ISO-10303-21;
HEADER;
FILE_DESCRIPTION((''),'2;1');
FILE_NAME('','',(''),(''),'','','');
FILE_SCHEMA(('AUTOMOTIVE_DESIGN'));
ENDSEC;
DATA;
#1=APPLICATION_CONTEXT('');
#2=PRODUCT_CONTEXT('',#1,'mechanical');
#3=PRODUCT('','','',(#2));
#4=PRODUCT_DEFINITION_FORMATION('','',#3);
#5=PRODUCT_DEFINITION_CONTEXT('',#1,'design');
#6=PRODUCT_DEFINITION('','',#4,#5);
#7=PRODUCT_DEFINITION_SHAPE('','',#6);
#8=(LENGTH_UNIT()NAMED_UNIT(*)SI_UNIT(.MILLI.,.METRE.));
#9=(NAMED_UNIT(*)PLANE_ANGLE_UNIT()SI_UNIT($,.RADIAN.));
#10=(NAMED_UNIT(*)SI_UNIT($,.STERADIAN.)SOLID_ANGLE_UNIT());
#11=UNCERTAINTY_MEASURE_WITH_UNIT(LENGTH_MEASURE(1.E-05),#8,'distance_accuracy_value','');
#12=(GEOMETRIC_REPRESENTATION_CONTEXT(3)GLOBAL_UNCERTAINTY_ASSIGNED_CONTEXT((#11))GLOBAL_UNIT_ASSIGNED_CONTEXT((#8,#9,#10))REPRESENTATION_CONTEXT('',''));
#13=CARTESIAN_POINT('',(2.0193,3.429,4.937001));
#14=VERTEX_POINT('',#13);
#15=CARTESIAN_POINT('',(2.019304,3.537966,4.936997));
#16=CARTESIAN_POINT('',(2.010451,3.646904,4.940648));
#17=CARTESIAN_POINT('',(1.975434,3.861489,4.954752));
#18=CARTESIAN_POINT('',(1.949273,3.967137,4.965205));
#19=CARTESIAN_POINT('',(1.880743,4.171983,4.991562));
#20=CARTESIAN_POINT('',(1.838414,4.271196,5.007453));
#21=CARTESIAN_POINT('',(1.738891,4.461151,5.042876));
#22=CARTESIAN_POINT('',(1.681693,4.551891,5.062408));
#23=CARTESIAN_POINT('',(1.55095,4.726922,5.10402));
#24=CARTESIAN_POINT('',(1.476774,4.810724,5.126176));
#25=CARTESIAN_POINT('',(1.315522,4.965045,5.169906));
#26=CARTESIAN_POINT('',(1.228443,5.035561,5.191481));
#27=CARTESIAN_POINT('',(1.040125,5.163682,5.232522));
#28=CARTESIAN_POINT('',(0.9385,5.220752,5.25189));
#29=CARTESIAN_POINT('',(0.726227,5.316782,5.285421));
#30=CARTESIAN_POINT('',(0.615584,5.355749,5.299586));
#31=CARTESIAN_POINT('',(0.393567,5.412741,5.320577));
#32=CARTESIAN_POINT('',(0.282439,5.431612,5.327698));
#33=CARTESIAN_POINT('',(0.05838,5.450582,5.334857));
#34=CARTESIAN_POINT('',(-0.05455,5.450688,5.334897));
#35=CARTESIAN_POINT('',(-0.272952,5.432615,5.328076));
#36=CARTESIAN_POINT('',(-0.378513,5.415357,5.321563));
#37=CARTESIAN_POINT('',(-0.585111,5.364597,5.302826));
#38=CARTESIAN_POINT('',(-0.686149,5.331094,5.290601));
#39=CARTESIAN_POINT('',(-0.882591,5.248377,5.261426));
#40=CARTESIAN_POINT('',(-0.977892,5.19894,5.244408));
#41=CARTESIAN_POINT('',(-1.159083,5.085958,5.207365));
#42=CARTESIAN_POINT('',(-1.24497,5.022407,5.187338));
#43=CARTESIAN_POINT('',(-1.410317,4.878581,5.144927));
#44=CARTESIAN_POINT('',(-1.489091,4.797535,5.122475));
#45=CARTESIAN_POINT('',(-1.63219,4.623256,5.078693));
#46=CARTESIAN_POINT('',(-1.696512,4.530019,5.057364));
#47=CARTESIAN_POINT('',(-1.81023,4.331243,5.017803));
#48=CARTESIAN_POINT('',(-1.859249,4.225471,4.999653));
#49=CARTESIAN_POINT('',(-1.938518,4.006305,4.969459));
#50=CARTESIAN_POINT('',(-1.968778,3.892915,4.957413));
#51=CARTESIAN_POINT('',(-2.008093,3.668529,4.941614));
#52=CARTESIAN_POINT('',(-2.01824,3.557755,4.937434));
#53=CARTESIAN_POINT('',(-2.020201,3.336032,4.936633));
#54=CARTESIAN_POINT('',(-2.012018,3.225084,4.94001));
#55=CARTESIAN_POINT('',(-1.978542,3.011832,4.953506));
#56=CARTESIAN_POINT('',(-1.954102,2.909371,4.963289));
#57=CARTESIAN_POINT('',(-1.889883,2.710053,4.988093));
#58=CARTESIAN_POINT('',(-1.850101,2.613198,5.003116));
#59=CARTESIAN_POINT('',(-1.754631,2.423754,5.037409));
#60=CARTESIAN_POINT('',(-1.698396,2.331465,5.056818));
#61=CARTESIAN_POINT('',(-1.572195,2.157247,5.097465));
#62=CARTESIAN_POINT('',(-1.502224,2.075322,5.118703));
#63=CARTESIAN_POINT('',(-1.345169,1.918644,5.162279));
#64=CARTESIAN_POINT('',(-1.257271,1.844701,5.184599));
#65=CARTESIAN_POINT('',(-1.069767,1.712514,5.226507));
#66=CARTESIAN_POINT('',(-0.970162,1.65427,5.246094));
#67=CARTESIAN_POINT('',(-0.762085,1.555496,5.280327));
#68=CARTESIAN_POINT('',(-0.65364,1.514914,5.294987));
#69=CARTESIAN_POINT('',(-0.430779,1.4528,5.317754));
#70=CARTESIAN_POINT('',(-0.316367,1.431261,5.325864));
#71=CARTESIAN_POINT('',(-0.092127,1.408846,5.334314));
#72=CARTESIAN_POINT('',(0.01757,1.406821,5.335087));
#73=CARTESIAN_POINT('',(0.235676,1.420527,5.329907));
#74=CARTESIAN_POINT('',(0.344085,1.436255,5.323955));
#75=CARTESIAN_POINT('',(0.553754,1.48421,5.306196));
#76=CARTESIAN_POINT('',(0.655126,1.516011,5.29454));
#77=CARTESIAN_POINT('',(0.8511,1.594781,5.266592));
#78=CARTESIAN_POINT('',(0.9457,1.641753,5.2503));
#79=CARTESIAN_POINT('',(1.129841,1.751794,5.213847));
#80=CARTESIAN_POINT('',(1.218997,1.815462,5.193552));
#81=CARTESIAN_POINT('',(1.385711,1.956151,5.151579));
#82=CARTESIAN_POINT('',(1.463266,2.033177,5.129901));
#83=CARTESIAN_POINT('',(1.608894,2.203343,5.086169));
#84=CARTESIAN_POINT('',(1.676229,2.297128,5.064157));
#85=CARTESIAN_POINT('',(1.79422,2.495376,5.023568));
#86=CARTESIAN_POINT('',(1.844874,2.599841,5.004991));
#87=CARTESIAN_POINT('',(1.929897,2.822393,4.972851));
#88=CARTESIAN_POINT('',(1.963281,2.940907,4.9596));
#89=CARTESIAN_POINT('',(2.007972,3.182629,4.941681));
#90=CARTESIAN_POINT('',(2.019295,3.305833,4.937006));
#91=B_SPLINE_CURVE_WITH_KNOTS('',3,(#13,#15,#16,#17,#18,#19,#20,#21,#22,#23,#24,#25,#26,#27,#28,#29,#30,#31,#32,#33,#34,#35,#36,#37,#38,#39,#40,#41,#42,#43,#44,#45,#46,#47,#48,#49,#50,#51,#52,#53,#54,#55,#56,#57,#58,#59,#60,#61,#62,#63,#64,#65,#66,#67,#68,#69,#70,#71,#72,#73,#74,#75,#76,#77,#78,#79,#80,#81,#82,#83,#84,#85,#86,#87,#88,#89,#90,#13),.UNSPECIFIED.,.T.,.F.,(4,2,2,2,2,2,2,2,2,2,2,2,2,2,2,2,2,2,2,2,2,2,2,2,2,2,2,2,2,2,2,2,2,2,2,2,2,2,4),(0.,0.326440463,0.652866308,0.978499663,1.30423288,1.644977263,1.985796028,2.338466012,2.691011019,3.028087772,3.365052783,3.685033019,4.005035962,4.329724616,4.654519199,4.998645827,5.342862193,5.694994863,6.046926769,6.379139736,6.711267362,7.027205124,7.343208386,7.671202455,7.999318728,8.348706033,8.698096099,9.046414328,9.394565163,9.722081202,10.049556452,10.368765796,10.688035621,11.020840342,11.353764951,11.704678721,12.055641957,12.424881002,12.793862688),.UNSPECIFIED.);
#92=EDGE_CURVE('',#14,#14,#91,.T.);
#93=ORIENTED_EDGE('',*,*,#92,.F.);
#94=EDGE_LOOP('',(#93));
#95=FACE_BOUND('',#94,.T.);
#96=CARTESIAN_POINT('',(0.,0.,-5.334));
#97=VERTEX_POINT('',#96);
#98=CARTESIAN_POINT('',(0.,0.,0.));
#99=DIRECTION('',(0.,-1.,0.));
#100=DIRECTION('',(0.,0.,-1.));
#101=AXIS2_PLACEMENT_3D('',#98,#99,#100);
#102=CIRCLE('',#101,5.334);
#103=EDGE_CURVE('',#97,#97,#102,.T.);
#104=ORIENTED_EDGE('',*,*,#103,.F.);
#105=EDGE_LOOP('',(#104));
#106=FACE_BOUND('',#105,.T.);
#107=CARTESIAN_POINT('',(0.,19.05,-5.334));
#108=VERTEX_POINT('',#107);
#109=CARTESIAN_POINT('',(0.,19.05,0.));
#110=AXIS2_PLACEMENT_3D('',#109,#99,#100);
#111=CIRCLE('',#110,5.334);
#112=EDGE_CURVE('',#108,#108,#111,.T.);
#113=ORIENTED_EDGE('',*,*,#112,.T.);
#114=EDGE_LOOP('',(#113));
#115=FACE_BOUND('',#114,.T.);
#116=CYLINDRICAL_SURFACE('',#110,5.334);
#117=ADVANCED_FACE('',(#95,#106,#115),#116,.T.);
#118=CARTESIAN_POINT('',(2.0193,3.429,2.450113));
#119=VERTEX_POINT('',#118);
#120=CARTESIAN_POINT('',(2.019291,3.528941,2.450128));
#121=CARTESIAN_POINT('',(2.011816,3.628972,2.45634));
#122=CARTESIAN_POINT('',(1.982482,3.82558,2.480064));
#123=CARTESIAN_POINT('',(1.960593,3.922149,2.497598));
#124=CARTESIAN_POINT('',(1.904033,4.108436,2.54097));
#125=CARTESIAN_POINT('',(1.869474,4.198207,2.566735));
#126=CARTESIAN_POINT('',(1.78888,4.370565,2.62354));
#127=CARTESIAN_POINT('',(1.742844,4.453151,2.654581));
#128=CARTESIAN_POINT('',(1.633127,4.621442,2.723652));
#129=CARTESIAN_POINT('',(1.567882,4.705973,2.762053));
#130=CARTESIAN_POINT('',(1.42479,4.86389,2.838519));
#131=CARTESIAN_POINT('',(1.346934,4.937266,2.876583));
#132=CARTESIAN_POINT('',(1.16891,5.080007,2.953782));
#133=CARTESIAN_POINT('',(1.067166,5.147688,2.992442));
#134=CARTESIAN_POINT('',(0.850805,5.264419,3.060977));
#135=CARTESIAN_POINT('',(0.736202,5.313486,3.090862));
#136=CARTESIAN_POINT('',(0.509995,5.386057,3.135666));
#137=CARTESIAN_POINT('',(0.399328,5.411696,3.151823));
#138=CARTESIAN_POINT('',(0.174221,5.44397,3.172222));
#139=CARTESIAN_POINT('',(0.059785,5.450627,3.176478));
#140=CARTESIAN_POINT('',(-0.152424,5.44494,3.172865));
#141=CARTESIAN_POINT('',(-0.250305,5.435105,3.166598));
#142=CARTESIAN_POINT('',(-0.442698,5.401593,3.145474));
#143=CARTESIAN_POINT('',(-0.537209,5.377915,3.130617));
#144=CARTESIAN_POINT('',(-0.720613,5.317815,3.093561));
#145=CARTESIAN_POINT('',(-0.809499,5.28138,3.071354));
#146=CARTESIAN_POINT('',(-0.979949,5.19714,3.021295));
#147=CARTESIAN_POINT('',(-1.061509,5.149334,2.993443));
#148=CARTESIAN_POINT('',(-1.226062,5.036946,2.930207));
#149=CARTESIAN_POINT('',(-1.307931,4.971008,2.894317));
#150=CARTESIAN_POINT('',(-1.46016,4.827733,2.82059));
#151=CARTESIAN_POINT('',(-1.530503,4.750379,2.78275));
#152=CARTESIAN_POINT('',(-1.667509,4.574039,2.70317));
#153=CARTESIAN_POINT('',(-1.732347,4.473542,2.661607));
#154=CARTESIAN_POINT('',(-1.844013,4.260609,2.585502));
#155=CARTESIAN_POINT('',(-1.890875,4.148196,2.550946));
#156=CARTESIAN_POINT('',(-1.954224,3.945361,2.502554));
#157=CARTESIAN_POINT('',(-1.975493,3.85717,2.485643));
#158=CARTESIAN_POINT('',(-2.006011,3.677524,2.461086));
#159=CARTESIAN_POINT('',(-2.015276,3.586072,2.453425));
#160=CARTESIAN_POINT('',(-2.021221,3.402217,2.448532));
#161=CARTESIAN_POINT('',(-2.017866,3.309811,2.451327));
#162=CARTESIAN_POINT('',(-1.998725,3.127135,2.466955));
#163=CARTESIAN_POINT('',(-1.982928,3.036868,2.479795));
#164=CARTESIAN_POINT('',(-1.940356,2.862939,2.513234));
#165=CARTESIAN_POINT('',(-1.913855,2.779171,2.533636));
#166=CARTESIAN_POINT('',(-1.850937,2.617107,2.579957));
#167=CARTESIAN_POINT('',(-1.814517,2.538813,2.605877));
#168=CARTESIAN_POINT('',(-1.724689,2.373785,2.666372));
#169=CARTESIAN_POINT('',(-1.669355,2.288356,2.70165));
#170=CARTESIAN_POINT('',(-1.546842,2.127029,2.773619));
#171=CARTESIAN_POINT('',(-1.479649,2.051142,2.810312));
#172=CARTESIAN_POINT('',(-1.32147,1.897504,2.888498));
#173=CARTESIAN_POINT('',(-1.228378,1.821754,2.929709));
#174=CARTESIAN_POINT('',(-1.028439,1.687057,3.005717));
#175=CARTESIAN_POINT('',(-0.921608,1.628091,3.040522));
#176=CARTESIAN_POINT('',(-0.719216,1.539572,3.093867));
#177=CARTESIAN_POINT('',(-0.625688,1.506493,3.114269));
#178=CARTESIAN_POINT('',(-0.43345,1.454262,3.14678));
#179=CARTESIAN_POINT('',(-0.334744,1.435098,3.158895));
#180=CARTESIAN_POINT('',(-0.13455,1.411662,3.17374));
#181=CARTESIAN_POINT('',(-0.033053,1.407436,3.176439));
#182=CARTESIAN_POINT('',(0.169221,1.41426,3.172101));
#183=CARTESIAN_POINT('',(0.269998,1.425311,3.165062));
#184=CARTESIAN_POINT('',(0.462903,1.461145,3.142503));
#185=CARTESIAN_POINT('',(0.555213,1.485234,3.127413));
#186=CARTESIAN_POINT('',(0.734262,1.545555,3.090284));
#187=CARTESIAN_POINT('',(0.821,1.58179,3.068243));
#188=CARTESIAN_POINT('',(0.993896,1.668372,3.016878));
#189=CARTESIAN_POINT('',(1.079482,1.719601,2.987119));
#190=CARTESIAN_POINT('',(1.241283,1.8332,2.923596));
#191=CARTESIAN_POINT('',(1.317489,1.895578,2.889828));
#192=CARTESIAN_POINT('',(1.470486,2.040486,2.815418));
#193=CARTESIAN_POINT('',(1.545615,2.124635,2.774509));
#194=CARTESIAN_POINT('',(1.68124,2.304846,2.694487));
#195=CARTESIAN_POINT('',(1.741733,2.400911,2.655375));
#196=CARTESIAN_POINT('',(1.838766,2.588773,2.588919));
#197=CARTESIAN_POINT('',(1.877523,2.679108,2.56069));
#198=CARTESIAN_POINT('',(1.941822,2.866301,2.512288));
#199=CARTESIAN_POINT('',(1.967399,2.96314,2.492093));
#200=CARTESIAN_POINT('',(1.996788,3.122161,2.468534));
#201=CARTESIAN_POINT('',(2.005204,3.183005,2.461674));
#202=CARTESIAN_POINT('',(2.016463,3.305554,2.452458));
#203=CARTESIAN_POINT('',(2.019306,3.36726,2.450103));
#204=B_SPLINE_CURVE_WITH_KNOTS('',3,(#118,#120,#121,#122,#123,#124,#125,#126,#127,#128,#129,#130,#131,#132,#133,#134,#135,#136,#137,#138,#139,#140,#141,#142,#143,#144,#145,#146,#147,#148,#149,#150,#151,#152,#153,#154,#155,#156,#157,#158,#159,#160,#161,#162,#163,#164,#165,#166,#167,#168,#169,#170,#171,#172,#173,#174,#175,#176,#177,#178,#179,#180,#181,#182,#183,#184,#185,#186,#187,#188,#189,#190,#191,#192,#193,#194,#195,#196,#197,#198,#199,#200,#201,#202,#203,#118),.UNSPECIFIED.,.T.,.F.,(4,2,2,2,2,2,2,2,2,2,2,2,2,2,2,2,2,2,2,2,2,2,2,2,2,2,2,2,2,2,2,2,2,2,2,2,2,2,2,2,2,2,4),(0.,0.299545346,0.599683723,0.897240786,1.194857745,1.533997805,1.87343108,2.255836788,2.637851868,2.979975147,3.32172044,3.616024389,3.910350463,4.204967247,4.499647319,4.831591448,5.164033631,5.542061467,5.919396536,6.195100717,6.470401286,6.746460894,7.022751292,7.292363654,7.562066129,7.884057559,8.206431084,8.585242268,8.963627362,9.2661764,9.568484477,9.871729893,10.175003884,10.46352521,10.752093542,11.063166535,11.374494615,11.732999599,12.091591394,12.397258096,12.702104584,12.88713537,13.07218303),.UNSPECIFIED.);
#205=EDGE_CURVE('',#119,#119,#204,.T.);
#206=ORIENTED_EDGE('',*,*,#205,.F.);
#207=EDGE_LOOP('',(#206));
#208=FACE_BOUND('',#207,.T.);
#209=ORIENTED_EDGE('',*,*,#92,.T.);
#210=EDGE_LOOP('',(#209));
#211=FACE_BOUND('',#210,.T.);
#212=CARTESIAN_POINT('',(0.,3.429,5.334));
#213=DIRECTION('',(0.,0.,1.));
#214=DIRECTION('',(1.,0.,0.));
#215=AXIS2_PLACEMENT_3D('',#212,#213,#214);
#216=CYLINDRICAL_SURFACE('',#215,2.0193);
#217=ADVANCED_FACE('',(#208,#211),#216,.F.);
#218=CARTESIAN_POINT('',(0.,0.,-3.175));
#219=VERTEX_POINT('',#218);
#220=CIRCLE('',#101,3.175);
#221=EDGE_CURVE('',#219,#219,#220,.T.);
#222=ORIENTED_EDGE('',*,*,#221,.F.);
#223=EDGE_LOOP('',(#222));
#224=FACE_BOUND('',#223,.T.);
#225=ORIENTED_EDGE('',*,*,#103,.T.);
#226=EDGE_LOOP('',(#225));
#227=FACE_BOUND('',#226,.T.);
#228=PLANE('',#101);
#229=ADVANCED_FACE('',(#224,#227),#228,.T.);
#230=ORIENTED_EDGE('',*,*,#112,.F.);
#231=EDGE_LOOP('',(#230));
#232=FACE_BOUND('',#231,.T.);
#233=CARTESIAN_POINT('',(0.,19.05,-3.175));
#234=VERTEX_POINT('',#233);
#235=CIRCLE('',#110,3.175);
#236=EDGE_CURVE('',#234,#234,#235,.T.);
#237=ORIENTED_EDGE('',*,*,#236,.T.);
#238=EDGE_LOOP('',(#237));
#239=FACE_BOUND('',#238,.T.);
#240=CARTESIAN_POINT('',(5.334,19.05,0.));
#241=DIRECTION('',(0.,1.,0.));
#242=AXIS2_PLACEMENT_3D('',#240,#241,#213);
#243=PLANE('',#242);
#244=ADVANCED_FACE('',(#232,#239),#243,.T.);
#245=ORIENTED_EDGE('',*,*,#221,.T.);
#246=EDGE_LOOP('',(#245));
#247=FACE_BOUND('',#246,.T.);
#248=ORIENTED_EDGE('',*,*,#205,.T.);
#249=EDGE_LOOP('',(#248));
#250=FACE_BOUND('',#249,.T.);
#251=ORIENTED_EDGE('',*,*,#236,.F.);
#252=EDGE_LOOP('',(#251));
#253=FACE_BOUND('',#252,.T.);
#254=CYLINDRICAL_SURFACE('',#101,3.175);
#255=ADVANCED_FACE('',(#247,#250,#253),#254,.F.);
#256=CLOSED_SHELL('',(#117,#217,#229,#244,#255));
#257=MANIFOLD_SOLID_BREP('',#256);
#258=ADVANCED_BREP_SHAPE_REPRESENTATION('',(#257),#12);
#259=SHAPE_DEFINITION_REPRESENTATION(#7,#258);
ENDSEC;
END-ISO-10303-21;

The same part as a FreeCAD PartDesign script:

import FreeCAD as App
import Part
import Sketcher
from FreeCAD import Vector
Q = App.Units.Quantity


def add_polygon(sketch, points):
    """Adds a closed chain of lines whose ends are joined by coincident constraints."""
    first, n = sketch.GeometryCount, len(points)
    for a, b in zip(points, points[1:] + points[:1]):
        sketch.addGeometry(Part.LineSegment(App.Vector(*a, 0), App.Vector(*b, 0)), False)
    for i in range(n):
        sketch.addConstraint(Sketcher.Constraint("Coincident", first + i, 2, first + (i + 1) % n, 1))

doc = App.newDocument("Part")
body = doc.addObject("PartDesign::Body", "Body")

sketch1 = doc.addObject("Sketcher::SketchObject", "Sketch")
body.addObject(sketch1)
sketch1.AttachmentSupport = (doc.XY_Plane, [""])
sketch1.MapMode = "FlatFace"
add_polygon(sketch1, [(0, 19), (0, 0), (5, 0), (5, 19)])
sketch1.addConstraint([
    Sketcher.Constraint("Vertical", 0),
    Sketcher.Constraint("Horizontal", 1),
    Sketcher.Constraint("Vertical", 2),
    Sketcher.Constraint("Horizontal", 3),
    Sketcher.Constraint("Coincident", 0, 2, -1, 1),
    Sketcher.Constraint("DistanceX", 1, 1, 1, 2, Q("0.21 in")),
    Sketcher.Constraint("DistanceY", 0, 2, 0, 1, Q("0.75 in")),
])
revolution = doc.addObject("PartDesign::Revolution", "Revolution")
body.addObject(revolution)
revolution.Profile = sketch1
revolution.ReferenceAxis = (sketch1, ["V_Axis"])
revolution.Angle = 360

sketch2 = doc.addObject("Sketcher::SketchObject", "Sketch001")
body.addObject(sketch2)
sketch2.AttachmentSupport = (doc.XZ_Plane, [""])
sketch2.MapMode = "FlatFace"
sketch2.addGeometry(Part.Circle(Vector(0, 0, 0), Vector(0, 0, 1), 3.2), False)
sketch2.addConstraint([
    Sketcher.Constraint("Coincident", 0, 3, -1, 1),
    Sketcher.Constraint("Diameter", 0, Q("0.25 in")),
])
doc.recompute()
hole = doc.addObject("PartDesign::Hole", "Hole")
body.addObject(hole)
hole.Profile = sketch2
hole.ThreadType = "None"
hole.Diameter = Q("0.25 in")
hole.DepthType = "ThroughAll"

sketch3 = doc.addObject("Sketcher::SketchObject", "Sketch002")
body.addObject(sketch3)
sketch3.AttachmentSupport = (doc.XY_Plane, [""])
sketch3.MapMode = "FlatFace"
sketch3.AttachmentOffset = App.Placement(Vector(0, 0, 0.21 * 25.4), App.Rotation())
sketch3.addGeometry(Part.Circle(Vector(0, 3.4, 0), Vector(0, 0, 1), 2), False)
sketch3.addConstraint([
    Sketcher.Constraint("PointOnObject", 0, 3, -2),
    Sketcher.Constraint("Diameter", 0, Q("0.159 in")),
    Sketcher.Constraint("DistanceY", -1, 1, 0, 3, Q("0.135 in")),
])
pocket1 = doc.addObject("PartDesign::Pocket", "Pocket")
body.addObject(pocket1)
pocket1.Profile = sketch3
pocket1.Length = 2.883887

doc.recompute()
